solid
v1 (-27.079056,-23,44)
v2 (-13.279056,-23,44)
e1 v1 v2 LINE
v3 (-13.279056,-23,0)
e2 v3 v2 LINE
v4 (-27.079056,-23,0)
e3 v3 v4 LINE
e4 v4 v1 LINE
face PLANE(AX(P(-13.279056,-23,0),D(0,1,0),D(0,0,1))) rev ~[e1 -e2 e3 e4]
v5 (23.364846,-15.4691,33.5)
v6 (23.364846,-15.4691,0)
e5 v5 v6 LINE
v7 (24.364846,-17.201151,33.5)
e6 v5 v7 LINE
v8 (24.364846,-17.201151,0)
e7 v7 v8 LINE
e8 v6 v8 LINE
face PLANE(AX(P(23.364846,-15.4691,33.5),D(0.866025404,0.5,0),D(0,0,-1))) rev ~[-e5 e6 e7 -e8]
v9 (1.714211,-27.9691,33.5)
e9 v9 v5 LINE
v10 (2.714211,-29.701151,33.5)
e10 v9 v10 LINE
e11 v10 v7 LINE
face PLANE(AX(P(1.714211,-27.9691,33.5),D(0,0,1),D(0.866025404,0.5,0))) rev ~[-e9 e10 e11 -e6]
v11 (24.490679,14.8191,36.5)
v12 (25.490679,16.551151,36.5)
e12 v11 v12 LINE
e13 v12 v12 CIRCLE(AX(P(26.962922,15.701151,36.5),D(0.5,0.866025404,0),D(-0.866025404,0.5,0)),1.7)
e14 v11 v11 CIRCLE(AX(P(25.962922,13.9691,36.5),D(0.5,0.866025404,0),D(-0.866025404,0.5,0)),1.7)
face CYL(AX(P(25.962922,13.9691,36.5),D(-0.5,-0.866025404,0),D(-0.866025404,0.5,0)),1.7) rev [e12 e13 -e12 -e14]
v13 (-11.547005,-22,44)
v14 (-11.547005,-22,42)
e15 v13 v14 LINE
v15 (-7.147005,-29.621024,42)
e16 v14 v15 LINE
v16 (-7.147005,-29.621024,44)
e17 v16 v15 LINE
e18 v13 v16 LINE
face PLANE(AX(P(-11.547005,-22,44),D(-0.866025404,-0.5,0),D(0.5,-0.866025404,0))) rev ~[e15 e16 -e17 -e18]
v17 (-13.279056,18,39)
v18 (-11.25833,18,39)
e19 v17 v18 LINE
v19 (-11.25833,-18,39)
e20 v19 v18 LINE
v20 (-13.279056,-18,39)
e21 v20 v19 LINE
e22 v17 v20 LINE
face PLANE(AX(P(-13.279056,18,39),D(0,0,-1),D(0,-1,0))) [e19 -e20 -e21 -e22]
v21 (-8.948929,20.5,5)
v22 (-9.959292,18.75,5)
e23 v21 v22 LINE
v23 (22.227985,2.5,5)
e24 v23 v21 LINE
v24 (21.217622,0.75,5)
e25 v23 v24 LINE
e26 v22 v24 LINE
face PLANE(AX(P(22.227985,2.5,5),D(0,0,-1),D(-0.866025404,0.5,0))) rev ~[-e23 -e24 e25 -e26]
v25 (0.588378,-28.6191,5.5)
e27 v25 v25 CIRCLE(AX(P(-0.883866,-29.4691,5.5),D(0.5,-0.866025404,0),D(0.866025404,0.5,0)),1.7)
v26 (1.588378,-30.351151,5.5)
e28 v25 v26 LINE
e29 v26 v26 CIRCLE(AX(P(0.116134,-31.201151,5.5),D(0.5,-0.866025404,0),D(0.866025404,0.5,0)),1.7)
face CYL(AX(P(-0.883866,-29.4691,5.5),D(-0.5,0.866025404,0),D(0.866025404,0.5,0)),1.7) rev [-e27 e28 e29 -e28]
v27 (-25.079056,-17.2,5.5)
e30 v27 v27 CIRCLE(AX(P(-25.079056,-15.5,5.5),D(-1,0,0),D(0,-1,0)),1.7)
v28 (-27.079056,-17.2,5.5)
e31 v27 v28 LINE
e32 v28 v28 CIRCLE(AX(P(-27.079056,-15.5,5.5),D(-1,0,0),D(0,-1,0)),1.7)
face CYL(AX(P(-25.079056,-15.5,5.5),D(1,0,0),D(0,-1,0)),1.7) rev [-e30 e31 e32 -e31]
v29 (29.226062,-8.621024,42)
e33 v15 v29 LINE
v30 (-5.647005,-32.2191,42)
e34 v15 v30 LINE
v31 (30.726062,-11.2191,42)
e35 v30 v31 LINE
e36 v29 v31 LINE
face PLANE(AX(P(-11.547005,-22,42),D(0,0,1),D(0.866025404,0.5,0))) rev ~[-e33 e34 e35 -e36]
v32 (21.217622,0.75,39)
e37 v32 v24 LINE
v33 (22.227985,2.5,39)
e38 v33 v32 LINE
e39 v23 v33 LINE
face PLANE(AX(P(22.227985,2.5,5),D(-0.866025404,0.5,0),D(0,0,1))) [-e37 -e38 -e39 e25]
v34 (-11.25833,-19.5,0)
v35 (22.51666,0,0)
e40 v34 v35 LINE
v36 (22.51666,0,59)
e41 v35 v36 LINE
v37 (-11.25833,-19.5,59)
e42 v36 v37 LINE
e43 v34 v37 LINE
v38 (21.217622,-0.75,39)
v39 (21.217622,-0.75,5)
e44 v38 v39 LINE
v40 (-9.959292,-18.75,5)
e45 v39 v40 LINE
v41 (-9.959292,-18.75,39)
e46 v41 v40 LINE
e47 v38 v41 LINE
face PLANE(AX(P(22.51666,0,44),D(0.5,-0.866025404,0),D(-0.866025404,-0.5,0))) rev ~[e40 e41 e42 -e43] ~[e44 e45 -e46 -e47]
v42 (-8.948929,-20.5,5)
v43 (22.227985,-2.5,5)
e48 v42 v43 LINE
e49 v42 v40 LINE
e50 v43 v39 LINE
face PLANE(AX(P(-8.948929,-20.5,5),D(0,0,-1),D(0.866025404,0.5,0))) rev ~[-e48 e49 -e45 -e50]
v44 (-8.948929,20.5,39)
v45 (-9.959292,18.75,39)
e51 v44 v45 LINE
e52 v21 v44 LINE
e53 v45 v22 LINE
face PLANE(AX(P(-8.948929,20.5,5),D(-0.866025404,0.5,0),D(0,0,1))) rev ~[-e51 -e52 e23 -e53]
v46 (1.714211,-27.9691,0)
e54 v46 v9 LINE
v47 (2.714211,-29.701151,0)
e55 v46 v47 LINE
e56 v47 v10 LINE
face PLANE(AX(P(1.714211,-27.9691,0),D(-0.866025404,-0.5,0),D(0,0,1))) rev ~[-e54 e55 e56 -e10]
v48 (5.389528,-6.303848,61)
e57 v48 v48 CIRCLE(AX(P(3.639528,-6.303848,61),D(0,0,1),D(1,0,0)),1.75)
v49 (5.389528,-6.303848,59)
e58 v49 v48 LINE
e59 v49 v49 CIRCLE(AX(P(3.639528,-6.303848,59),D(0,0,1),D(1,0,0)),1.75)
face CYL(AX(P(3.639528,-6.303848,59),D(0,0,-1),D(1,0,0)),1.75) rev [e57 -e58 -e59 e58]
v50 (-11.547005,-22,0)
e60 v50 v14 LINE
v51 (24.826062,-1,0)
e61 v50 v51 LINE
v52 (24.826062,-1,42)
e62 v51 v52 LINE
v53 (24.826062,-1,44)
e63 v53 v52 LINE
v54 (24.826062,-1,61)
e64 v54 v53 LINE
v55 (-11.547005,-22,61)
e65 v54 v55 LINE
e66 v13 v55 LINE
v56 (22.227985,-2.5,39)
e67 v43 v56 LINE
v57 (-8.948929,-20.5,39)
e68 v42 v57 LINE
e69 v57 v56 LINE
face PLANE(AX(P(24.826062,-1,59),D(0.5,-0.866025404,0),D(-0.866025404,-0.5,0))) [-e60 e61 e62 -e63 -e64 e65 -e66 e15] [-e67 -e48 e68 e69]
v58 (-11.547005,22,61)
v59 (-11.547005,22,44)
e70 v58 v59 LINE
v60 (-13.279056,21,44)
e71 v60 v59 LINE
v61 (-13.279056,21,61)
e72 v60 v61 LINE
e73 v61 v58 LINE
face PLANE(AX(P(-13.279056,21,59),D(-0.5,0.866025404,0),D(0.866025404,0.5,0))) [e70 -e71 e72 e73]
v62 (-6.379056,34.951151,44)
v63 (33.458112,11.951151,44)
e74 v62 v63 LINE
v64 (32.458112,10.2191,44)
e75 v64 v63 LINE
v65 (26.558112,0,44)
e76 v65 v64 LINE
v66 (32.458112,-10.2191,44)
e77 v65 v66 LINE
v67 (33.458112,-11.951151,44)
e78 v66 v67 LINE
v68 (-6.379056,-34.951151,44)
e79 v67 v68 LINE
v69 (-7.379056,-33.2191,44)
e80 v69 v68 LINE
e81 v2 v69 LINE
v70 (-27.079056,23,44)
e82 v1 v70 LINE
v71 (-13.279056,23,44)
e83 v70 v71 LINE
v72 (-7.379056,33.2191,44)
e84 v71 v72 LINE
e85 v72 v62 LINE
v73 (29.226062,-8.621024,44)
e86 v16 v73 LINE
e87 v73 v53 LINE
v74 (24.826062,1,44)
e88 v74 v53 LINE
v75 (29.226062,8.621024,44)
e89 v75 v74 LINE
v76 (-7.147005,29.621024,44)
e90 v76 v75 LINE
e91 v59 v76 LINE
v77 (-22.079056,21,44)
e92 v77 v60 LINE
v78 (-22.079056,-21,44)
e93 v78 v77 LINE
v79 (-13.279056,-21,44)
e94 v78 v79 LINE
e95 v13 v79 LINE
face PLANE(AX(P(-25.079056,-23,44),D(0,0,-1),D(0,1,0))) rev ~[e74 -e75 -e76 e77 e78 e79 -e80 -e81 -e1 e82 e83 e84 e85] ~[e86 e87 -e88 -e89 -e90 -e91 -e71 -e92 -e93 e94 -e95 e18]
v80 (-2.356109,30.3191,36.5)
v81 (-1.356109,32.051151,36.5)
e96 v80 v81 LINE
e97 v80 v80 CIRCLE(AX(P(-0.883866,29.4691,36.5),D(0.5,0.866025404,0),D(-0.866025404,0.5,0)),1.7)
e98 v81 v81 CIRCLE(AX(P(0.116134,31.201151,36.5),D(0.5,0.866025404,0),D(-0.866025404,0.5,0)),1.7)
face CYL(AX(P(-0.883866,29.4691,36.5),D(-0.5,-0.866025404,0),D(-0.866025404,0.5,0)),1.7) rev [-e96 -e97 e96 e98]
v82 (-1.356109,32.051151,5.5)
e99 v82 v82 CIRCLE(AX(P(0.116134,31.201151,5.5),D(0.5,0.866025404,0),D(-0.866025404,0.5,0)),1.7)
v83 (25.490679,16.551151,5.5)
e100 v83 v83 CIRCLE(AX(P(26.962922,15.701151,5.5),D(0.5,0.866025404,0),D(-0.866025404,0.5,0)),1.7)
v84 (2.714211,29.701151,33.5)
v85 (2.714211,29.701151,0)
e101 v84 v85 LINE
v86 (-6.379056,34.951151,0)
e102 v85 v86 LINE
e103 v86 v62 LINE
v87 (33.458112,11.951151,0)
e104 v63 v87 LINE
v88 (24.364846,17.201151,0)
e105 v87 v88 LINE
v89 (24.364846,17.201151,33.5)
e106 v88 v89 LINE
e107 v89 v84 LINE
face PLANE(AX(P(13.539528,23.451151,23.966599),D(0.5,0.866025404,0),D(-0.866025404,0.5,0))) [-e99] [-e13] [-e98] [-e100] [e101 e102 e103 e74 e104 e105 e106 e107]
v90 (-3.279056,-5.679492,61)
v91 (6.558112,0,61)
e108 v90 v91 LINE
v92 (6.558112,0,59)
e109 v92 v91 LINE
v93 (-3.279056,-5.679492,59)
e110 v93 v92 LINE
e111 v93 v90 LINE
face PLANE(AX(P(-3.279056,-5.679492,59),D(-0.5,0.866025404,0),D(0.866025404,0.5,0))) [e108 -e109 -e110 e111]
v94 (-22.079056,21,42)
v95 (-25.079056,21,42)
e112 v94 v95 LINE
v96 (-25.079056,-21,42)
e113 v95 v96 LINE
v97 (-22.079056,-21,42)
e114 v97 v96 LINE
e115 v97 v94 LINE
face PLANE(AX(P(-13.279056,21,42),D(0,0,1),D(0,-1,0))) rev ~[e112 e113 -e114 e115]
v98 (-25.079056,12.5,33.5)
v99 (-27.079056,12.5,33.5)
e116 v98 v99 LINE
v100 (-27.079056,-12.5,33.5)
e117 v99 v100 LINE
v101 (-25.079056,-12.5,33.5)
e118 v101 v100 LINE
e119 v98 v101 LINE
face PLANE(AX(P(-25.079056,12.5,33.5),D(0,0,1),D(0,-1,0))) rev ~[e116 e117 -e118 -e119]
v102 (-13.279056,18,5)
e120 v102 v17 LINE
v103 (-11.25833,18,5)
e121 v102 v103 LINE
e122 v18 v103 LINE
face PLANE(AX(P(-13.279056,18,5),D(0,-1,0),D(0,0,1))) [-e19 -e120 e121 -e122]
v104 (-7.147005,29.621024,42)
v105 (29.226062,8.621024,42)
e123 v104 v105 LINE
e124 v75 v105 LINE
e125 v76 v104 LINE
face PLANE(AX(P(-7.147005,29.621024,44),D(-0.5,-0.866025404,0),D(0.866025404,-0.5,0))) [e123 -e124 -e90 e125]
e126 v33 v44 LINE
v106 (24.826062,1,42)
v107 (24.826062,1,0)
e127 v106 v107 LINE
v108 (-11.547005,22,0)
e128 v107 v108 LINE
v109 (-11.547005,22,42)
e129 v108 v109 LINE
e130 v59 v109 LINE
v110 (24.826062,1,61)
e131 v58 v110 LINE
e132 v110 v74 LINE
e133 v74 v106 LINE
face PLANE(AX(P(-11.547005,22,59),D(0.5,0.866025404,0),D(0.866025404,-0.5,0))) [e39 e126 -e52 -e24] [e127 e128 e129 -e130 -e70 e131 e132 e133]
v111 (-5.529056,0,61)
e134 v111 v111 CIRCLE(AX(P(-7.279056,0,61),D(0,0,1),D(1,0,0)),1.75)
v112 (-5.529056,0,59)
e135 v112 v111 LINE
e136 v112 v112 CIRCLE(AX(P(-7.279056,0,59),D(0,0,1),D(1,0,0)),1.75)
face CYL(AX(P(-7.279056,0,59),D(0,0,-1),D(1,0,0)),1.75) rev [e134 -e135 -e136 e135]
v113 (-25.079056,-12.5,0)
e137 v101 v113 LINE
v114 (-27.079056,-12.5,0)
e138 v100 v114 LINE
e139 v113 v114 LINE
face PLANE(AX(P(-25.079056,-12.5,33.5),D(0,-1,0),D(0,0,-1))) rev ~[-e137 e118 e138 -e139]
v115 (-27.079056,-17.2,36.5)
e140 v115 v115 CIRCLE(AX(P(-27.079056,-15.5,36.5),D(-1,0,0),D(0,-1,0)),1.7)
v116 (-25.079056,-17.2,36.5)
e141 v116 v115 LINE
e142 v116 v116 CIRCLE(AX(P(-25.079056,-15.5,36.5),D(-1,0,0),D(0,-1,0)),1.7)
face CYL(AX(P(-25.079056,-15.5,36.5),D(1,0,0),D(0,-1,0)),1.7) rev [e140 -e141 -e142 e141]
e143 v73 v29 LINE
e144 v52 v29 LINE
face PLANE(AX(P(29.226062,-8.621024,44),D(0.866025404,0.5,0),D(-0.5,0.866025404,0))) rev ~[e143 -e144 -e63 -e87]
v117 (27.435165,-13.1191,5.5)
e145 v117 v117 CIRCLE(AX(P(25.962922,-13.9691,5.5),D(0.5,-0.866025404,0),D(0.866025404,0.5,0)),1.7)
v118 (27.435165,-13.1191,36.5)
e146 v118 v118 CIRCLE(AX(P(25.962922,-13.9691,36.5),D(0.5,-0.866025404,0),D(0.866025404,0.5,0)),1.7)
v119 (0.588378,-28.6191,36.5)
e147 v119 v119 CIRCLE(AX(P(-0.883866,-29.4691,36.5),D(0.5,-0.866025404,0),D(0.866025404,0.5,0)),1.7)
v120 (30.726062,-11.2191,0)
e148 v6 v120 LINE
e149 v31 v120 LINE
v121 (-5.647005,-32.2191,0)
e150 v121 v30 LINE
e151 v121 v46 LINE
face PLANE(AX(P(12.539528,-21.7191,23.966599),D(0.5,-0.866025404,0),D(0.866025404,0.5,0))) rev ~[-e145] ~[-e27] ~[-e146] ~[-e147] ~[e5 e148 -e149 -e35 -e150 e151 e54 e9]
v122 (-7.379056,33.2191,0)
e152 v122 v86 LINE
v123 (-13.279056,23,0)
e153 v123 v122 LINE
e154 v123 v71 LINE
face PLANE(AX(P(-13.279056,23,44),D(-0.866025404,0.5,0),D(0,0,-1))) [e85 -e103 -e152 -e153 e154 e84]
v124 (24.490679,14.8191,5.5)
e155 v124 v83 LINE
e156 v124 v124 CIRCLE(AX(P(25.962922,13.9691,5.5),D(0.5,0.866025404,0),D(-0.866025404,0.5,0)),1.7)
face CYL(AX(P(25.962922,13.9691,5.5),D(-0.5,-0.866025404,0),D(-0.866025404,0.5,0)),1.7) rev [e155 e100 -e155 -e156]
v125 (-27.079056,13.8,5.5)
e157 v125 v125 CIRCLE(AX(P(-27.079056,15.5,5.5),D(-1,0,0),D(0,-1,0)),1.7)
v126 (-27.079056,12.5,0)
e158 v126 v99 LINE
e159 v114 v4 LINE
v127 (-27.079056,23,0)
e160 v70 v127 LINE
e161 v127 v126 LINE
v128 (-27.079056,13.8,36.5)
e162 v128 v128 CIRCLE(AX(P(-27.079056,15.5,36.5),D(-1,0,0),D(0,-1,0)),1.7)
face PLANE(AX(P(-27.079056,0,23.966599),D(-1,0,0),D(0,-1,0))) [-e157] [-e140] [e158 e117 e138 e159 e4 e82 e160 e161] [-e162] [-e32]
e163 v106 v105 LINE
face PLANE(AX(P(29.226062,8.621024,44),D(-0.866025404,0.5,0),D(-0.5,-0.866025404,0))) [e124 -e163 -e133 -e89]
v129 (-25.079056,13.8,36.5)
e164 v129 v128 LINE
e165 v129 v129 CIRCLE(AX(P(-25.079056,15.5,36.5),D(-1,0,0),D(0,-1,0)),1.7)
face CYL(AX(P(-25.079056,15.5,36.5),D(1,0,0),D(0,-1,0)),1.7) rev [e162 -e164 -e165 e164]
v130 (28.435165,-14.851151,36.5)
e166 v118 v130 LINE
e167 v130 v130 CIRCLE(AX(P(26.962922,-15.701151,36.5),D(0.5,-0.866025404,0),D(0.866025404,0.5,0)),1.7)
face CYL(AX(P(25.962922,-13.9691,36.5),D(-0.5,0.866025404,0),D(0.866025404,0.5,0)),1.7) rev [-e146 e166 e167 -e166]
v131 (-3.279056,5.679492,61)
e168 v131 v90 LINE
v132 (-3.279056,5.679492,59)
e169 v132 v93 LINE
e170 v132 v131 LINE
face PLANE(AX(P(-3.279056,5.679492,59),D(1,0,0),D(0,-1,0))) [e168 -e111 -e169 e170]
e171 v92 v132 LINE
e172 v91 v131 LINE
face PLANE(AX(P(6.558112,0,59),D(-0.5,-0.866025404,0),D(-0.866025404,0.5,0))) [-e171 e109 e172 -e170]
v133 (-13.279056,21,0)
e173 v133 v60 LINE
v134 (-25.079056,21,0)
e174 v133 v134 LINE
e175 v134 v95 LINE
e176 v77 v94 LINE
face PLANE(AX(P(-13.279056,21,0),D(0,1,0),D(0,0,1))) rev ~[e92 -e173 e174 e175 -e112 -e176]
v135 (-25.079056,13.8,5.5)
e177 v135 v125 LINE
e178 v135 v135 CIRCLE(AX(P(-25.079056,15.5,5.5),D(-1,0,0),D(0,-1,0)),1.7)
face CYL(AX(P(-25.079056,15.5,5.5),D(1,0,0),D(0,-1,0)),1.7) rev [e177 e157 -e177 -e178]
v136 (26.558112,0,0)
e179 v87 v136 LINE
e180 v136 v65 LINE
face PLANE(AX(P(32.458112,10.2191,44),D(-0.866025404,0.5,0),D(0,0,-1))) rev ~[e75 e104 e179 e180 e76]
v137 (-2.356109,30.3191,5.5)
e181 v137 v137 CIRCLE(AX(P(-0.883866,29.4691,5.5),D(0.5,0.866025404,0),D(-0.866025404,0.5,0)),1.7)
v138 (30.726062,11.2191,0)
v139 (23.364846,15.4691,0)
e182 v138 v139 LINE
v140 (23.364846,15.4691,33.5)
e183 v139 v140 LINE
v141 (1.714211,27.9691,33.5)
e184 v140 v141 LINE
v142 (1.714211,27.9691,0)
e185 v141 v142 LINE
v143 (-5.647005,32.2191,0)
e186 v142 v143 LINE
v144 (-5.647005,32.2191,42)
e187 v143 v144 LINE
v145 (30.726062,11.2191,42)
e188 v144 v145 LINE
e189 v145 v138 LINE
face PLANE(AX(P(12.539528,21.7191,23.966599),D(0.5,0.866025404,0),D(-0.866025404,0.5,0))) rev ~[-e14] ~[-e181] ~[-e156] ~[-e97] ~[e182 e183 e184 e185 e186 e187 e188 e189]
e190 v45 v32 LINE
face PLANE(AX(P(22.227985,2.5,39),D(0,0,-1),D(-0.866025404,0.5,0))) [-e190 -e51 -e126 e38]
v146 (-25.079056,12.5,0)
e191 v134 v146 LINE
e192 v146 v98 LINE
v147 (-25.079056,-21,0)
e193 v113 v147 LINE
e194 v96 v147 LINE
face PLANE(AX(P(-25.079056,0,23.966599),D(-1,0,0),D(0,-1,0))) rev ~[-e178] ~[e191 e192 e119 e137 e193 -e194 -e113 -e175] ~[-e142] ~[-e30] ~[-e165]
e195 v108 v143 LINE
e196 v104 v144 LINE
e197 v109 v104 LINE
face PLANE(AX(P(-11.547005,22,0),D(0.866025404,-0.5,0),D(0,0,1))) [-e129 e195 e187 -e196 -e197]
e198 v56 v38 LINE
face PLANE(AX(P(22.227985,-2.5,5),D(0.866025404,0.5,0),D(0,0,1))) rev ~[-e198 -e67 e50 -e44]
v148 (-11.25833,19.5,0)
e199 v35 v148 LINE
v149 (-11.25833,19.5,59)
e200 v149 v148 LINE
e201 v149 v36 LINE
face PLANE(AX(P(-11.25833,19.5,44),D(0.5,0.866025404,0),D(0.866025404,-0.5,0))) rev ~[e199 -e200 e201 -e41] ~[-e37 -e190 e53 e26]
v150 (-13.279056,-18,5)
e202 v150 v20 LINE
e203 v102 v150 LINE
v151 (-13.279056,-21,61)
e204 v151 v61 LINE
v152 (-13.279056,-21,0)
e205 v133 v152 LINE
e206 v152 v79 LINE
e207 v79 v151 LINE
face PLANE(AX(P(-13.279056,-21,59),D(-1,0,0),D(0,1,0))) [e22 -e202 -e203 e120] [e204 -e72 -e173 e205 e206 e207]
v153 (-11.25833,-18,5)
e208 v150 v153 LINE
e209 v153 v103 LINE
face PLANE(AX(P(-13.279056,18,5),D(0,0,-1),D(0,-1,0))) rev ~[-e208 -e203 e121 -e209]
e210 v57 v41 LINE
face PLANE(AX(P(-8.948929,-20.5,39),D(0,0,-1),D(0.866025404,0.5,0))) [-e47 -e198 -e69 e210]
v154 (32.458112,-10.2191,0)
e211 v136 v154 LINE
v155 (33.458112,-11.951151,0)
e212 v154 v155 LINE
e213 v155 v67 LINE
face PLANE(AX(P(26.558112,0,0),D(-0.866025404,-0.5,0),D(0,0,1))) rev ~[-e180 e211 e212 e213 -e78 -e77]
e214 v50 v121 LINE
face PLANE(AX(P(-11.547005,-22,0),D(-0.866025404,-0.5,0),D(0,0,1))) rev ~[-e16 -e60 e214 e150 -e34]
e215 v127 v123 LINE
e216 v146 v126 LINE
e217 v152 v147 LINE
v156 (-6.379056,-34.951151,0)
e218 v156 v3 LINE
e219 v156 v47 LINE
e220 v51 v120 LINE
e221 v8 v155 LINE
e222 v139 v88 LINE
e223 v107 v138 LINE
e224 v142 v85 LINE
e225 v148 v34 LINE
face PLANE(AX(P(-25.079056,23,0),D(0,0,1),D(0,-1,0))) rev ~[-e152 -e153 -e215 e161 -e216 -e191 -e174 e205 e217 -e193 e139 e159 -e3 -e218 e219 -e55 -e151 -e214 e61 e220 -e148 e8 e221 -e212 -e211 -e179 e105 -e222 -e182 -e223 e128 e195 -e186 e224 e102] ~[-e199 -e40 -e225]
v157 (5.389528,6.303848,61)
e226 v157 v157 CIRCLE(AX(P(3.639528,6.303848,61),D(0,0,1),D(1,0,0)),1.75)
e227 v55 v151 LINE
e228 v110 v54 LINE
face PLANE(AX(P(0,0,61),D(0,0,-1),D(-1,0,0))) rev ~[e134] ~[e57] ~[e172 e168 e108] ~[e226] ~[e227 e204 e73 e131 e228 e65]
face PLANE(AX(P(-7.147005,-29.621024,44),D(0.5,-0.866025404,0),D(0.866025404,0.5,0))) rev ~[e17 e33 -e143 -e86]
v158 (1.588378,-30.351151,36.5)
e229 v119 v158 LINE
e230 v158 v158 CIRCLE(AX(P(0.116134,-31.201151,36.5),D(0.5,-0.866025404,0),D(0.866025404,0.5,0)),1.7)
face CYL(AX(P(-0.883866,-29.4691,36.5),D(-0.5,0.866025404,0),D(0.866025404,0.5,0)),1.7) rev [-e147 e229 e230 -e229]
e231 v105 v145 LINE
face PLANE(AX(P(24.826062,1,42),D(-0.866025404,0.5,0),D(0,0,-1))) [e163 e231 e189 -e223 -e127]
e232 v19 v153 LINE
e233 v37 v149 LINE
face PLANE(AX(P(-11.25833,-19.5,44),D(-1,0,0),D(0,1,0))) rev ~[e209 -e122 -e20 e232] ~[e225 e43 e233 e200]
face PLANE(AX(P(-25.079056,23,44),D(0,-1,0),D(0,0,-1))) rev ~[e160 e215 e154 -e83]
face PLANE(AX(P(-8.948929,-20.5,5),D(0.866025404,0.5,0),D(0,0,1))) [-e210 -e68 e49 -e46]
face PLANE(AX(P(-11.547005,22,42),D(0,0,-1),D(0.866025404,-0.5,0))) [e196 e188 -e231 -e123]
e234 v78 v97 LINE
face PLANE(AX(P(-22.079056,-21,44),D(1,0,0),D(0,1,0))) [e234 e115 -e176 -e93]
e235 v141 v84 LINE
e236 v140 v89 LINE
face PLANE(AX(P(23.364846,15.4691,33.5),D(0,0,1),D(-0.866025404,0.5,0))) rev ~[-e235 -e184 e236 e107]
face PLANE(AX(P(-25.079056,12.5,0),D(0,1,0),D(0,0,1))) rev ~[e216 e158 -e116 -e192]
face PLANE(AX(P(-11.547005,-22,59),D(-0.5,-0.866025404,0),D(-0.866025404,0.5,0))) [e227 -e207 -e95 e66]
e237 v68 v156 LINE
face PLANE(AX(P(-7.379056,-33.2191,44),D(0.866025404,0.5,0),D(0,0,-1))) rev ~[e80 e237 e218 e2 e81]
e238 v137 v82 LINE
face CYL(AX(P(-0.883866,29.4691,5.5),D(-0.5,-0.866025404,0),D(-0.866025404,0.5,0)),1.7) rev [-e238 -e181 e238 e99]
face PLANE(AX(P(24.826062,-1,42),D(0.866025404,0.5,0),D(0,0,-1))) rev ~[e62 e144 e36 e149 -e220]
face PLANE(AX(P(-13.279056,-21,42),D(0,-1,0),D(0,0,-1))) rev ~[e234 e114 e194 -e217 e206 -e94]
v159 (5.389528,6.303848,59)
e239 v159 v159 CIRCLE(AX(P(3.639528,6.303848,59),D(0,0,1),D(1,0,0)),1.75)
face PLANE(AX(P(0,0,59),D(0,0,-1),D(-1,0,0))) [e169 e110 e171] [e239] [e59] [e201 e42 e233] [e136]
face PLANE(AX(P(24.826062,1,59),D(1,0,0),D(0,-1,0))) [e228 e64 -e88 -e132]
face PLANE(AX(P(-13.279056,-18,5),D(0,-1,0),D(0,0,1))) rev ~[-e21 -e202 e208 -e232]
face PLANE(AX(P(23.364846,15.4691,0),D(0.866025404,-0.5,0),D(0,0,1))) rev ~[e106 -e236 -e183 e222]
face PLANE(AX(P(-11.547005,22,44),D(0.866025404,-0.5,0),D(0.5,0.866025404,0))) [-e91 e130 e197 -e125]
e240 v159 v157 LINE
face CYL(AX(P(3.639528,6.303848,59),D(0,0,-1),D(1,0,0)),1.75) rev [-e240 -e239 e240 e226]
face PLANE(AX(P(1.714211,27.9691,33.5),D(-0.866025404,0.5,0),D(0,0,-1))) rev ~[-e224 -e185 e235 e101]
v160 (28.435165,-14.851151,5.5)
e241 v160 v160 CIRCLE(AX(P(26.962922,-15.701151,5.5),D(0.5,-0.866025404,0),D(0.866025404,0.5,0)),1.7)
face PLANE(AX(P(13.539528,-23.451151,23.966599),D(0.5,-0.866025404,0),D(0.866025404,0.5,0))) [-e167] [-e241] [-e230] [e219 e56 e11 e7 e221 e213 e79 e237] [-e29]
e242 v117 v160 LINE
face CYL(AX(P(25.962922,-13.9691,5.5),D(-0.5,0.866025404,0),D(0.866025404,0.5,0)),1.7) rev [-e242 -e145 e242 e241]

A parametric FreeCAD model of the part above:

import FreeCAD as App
import Part
import Sketcher
Q = App.Units.Quantity


def add_polygon(sketch, points):
    """Adds a closed chain of lines whose ends are joined by coincident constraints."""
    first, n = sketch.GeometryCount, len(points)
    for a, b in zip(points, points[1:] + points[:1]):
        sketch.addGeometry(Part.LineSegment(App.Vector(*a, 0), App.Vector(*b, 0)), False)
    for i in range(n):
        sketch.addConstraint(Sketcher.Constraint("Coincident", first + i, 2, first + (i + 1) % n, 1))

doc = App.newDocument("Part")
body = doc.addObject("PartDesign::Body", "Body")

sketch1 = doc.addObject("Sketcher::SketchObject", "Sketch")
body.addObject(sketch1)
sketch1.AttachmentSupport = (doc.XY_Plane, [""])
sketch1.MapMode = "FlatFace"
add_polygon(sketch1, [(27, 0), (-13, 23), (-13, -23)])
add_polygon(sketch1, [(-11, 20), (23, 0), (-11, -20)])
sketch1.addConstraint(Sketcher.Constraint("Vertical", 1))
sketch1.addConstraint(Sketcher.Constraint("Vertical", 5))
sketch1.addConstraint(Sketcher.Constraint("PointOnObject", 2, 2, -1))
sketch1.addConstraint(Sketcher.Constraint("PointOnObject", 3, 2, -1))
sketch1.addConstraint(Sketcher.Constraint("Parallel", 0, 3))
sketch1.addConstraint(Sketcher.Constraint("Parallel", 2, 4))
sketch1.addConstraint(Sketcher.Constraint("Equal", 0, 2))
sketch1.addConstraint(Sketcher.Constraint("DistanceY", 1, 2, 1, 1, 46.0))
sketch1.addConstraint(Sketcher.Constraint("DistanceY", 5, 1, 5, 2, 39.0))
sketch1.addConstraint(Sketcher.Constraint("Angle", 0, Q("150 deg")))
sketch1.addConstraint(Sketcher.Constraint("DistanceX", -1, 1, 3, 2, 22.51666))
sketch1.addConstraint(Sketcher.Constraint("DistanceX", 3, 2, 2, 2, 4.041452))
pad1 = doc.addObject("PartDesign::Pad", "Pad")
body.addObject(pad1)
pad1.Profile = sketch1
pad1.Length = 44

sketch2 = doc.addObject("Sketcher::SketchObject", "Sketch001")
body.addObject(sketch2)
sketch2.Placement = App.Placement(App.Vector(6.639528, -11.5, 0), App.Rotation(App.Vector(0.866025404, 0.5, 0), App.Vector(0, 0, 1), App.Vector(0.5, -0.866025404, 0), "ZXY"))
add_polygon(sketch2, [(-23, 0), (-21, 0), (-21, 42), (21, 42), (21, 0), (23, 0), (23, 44), (-23, 44)])
sketch2.addConstraint(Sketcher.Constraint("Horizontal", 0))
sketch2.addConstraint(Sketcher.Constraint("Vertical", 1))
sketch2.addConstraint(Sketcher.Constraint("Horizontal", 2))
sketch2.addConstraint(Sketcher.Constraint("Vertical", 3))
sketch2.addConstraint(Sketcher.Constraint("Horizontal", 4))
sketch2.addConstraint(Sketcher.Constraint("Vertical", 5))
sketch2.addConstraint(Sketcher.Constraint("Horizontal", 6))
sketch2.addConstraint(Sketcher.Constraint("Vertical", 7))
sketch2.addConstraint(Sketcher.Constraint("Symmetric", 0, 2, 3, 2, -1, 1))
sketch2.addConstraint(Sketcher.Constraint("Symmetric", 4, 2, 7, 2, -2))
sketch2.addConstraint(Sketcher.Constraint("Equal", 2, 1))
sketch2.addConstraint(Sketcher.Constraint("DistanceX", 0, 1, 0, 2, 2.0))
sketch2.addConstraint(Sketcher.Constraint("DistanceX", 2, 1, 2, 2, 42.0))
sketch2.addConstraint(Sketcher.Constraint("DistanceY", 5, 1, 5, 2, 44.0))
pad2 = doc.addObject("PartDesign::Pad", "Pad001")
body.addObject(pad2)
pad2.Profile = sketch2
pad2.Length = 11.8

sketch3 = doc.addObject("Sketcher::SketchObject", "Sketch002")
body.addObject(sketch3)
sketch3.Placement = App.Placement(App.Vector(12.539528, -21.7191, 0), App.Rotation(App.Vector(0.866025404, 0.5, 0), App.Vector(0, 0, 1), App.Vector(0.5, -0.866025404, 0), "ZXY"))
add_polygon(sketch3, [(-23, 0), (-12.5, 0), (-12.5, 33.5), (12.5, 33.5), (12.5, 0), (23, 0), (23, 44), (-23, 44)])
sketch3.addGeometry(Part.Circle(App.Vector(-15.5, 5.5, 0), App.Vector(0, 0, 1), 1.7), False)
sketch3.addGeometry(Part.Circle(App.Vector(15.5, 5.5, 0), App.Vector(0, 0, 1), 1.7), False)
sketch3.addGeometry(Part.Circle(App.Vector(-15.5, 36.5, 0), App.Vector(0, 0, 1), 1.7), False)
sketch3.addGeometry(Part.Circle(App.Vector(15.5, 36.5, 0), App.Vector(0, 0, 1), 1.7), False)
sketch3.addConstraint(Sketcher.Constraint("Horizontal", 0))
sketch3.addConstraint(Sketcher.Constraint("Vertical", 1))
sketch3.addConstraint(Sketcher.Constraint("Horizontal", 2))
sketch3.addConstraint(Sketcher.Constraint("Vertical", 3))
sketch3.addConstraint(Sketcher.Constraint("Horizontal", 4))
sketch3.addConstraint(Sketcher.Constraint("Vertical", 5))
sketch3.addConstraint(Sketcher.Constraint("Horizontal", 6))
sketch3.addConstraint(Sketcher.Constraint("Vertical", 7))
sketch3.addConstraint(Sketcher.Constraint("Equal", 8, 9))
sketch3.addConstraint(Sketcher.Constraint("Equal", 9, 10))
sketch3.addConstraint(Sketcher.Constraint("Equal", 10, 11))
sketch3.addConstraint(Sketcher.Constraint("Symmetric", 0, 2, 3, 2, -1, 1))
sketch3.addConstraint(Sketcher.Constraint("Symmetric", 8, 3, 9, 3, -2))
sketch3.addConstraint(Sketcher.Constraint("Symmetric", 10, 3, 11, 3, -2))
sketch3.addConstraint(Sketcher.Constraint("Symmetric", 4, 2, 7, 2, -2))
sketch3.addConstraint(Sketcher.Constraint("Vertical", 8, 3, 10, 3))
sketch3.addConstraint(Sketcher.Constraint("Diameter", 8, 3.4))
sketch3.addConstraint(Sketcher.Constraint("DistanceX", 2, 1, 2, 2, 25.0))
sketch3.addConstraint(Sketcher.Constraint("DistanceX", 6, 2, 6, 1, 46.0))
sketch3.addConstraint(Sketcher.Constraint("DistanceY", 5, 1, 5, 2, 44.0))
sketch3.addConstraint(Sketcher.Constraint("DistanceY", 1, 1, 1, 2, 33.5))
sketch3.addConstraint(Sketcher.Constraint("DistanceX", 8, 3, 9, 3, 31.0))
sketch3.addConstraint(Sketcher.Constraint("DistanceY", 8, 3, 10, 3, 31.0))
sketch3.addConstraint(Sketcher.Constraint("DistanceY", 1, 2, 10, 3, 3.0))
pad3 = doc.addObject("PartDesign::Pad", "Pad002")
body.addObject(pad3)
pad3.Profile = sketch3
pad3.Length = 2

sketch4 = doc.addObject("Sketcher::SketchObject", "Sketch003")
body.addObject(sketch4)
sketch4.AttachmentSupport = (doc.XY_Plane, [""])
sketch4.MapMode = "FlatFace"
sketch4.AttachmentOffset = App.Placement(App.Vector(0, 0, 44), App.Rotation())
add_polygon(sketch4, [(-12, -22), (-7, -30), (29, -9), (25, -1)])
sketch4.addConstraint(Sketcher.Constraint("Perpendicular", 0, 1))
sketch4.addConstraint(Sketcher.Constraint("Perpendicular", 1, 2))
sketch4.addConstraint(Sketcher.Constraint("Perpendicular", 2, 3))
sketch4.addConstraint(Sketcher.Constraint("Angle", 0, Q("-60 deg")))
sketch4.addConstraint(Sketcher.Constraint("Distance", 1, 42.0))
sketch4.addConstraint(Sketcher.Constraint("DistanceY", 2, 2, -1, 1, 1.0))
sketch4.addConstraint(Sketcher.Constraint("Distance", 0, 8.8))
sketch4.addConstraint(Sketcher.Constraint("DistanceX", -1, 1, 1, 2, 29.226062))
pocket1 = doc.addObject("PartDesign::Pocket", "Pocket")
body.addObject(pocket1)
pocket1.Profile = sketch4
pocket1.Length = 5

sketch5 = doc.addObject("Sketcher::SketchObject", "Sketch004")
body.addObject(sketch5)
sketch5.Placement = App.Placement(App.Vector(6.639528, -11.5, 0), App.Rotation(App.Vector(0.866025404, 0.5, 0), App.Vector(0, 0, 1), App.Vector(0.5, -0.866025404, 0), "ZXY"))
add_polygon(sketch5, [(-18, 39), (-18, 5), (18, 5), (18, 39)])
sketch5.addConstraint(Sketcher.Constraint("Vertical", 0))
sketch5.addConstraint(Sketcher.Constraint("Horizontal", 1))
sketch5.addConstraint(Sketcher.Constraint("Vertical", 2))
sketch5.addConstraint(Sketcher.Constraint("Horizontal", 3))
sketch5.addConstraint(Sketcher.Constraint("DistanceX", 1, 1, 1, 2, 36.0))
sketch5.addConstraint(Sketcher.Constraint("DistanceY", 0, 2, 0, 1, 34.0))
sketch5.addConstraint(Sketcher.Constraint("DistanceX", 0, 2, -1, 1, 18.0))
sketch5.addConstraint(Sketcher.Constraint("DistanceY", -1, 1, 0, 2, 5.0))
pocket2 = doc.addObject("PartDesign::Pocket", "Pocket001")
body.addObject(pocket2)
pocket2.Profile = sketch5
pocket2.Length = 3

sketch6 = doc.addObject("Sketcher::SketchObject", "Sketch005")
body.addObject(sketch6)
sketch6.Placement = App.Placement(App.Vector(6.639528, 11.5, 0), App.Rotation(App.Vector(-0.866025404, 0.5, 0), App.Vector(0, 0, 1), App.Vector(0.5, 0.866025404, 0), "ZXY"))
add_polygon(sketch6, [(-18, 39), (-18, 5), (18, 5), (18, 39)])
sketch6.addConstraint(Sketcher.Constraint("Vertical", 0))
sketch6.addConstraint(Sketcher.Constraint("Horizontal", 1))
sketch6.addConstraint(Sketcher.Constraint("Vertical", 2))
sketch6.addConstraint(Sketcher.Constraint("Horizontal", 3))
sketch6.addConstraint(Sketcher.Constraint("DistanceX", 1, 1, 1, 2, 36.0))
sketch6.addConstraint(Sketcher.Constraint("DistanceY", 0, 2, 0, 1, 34.0))
sketch6.addConstraint(Sketcher.Constraint("DistanceX", 0, 2, -1, 1, 18.0))
sketch6.addConstraint(Sketcher.Constraint("DistanceY", -1, 1, 0, 2, 5.0))
pocket3 = doc.addObject("PartDesign::Pocket", "Pocket002")
body.addObject(pocket3)
pocket3.Profile = sketch6
pocket3.Length = 4

sketch7 = doc.addObject("Sketcher::SketchObject", "Sketch006")
body.addObject(sketch7)
sketch7.Placement = App.Placement(App.Vector(6.639528, 11.5, 0), App.Rotation(App.Vector(-0.866025404, 0.5, 0), App.Vector(0, 0, 1), App.Vector(0.5, 0.866025404, 0), "ZXY"))
add_polygon(sketch7, [(23, 44), (-23, 44), (-23, 0), (-21, 0), (-21, 42), (21, 42), (21, 0), (23, 0)])
sketch7.addConstraint(Sketcher.Constraint("Horizontal", 0))
sketch7.addConstraint(Sketcher.Constraint("Vertical", 1))
sketch7.addConstraint(Sketcher.Constraint("Horizontal", 2))
sketch7.addConstraint(Sketcher.Constraint("Vertical", 3))
sketch7.addConstraint(Sketcher.Constraint("Horizontal", 4))
sketch7.addConstraint(Sketcher.Constraint("Vertical", 5))
sketch7.addConstraint(Sketcher.Constraint("Horizontal", 6))
sketch7.addConstraint(Sketcher.Constraint("Vertical", 7))
sketch7.addConstraint(Sketcher.Constraint("Symmetric", 2, 2, 5, 2, -1, 1))
sketch7.addConstraint(Sketcher.Constraint("Symmetric", 1, 2, 6, 2, -2))
sketch7.addConstraint(Sketcher.Constraint("Equal", 4, 3))
sketch7.addConstraint(Sketcher.Constraint("DistanceX", 0, 2, 0, 1, 46.0))
sketch7.addConstraint(Sketcher.Constraint("DistanceX", 2, 1, 2, 2, 2.0))
sketch7.addConstraint(Sketcher.Constraint("DistanceY", 1, 2, 1, 1, 44.0))
pad4 = doc.addObject("PartDesign::Pad", "Pad003")
body.addObject(pad4)
pad4.Profile = sketch7
pad4.Length = 11.8

sketch8 = doc.addObject("Sketcher::SketchObject", "Sketch007")
body.addObject(sketch8)
sketch8.Placement = App.Placement(App.Vector(12.539528, 21.7191, 0), App.Rotation(App.Vector(-0.866025404, 0.5, 0), App.Vector(0, 0, 1), App.Vector(0.5, 0.866025404, 0), "ZXY"))
add_polygon(sketch8, [(-23, 0), (-12.5, 0), (-12.5, 33.5), (12.5, 33.5), (12.5, 0), (23, 0), (23, 44), (-23, 44)])
sketch8.addGeometry(Part.Circle(App.Vector(-15.5, 5.5, 0), App.Vector(0, 0, 1), 1.7), False)
sketch8.addGeometry(Part.Circle(App.Vector(15.5, 5.5, 0), App.Vector(0, 0, 1), 1.7), False)
sketch8.addGeometry(Part.Circle(App.Vector(-15.5, 36.5, 0), App.Vector(0, 0, 1), 1.7), False)
sketch8.addGeometry(Part.Circle(App.Vector(15.5, 36.5, 0), App.Vector(0, 0, 1), 1.7), False)
sketch8.addConstraint(Sketcher.Constraint("Horizontal", 0))
sketch8.addConstraint(Sketcher.Constraint("Vertical", 1))
sketch8.addConstraint(Sketcher.Constraint("Horizontal", 2))
sketch8.addConstraint(Sketcher.Constraint("Vertical", 3))
sketch8.addConstraint(Sketcher.Constraint("Horizontal", 4))
sketch8.addConstraint(Sketcher.Constraint("Vertical", 5))
sketch8.addConstraint(Sketcher.Constraint("Horizontal", 6))
sketch8.addConstraint(Sketcher.Constraint("Vertical", 7))
sketch8.addConstraint(Sketcher.Constraint("Equal", 8, 9))
sketch8.addConstraint(Sketcher.Constraint("Equal", 9, 10))
sketch8.addConstraint(Sketcher.Constraint("Equal", 10, 11))
sketch8.addConstraint(Sketcher.Constraint("Symmetric", 0, 2, 3, 2, -1, 1))
sketch8.addConstraint(Sketcher.Constraint("Symmetric", 8, 3, 9, 3, -2))
sketch8.addConstraint(Sketcher.Constraint("Symmetric", 10, 3, 11, 3, -2))
sketch8.addConstraint(Sketcher.Constraint("Symmetric", 4, 2, 7, 2, -2))
sketch8.addConstraint(Sketcher.Constraint("Vertical", 8, 3, 10, 3))
sketch8.addConstraint(Sketcher.Constraint("Diameter", 8, 3.4))
sketch8.addConstraint(Sketcher.Constraint("DistanceX", 2, 1, 2, 2, 25.0))
sketch8.addConstraint(Sketcher.Constraint("DistanceX", 6, 2, 6, 1, 46.0))
sketch8.addConstraint(Sketcher.Constraint("DistanceY", 5, 1, 5, 2, 44.0))
sketch8.addConstraint(Sketcher.Constraint("DistanceY", 1, 1, 1, 2, 33.5))
sketch8.addConstraint(Sketcher.Constraint("DistanceX", 8, 3, 9, 3, 31.0))
sketch8.addConstraint(Sketcher.Constraint("DistanceY", 8, 3, 10, 3, 31.0))
sketch8.addConstraint(Sketcher.Constraint("DistanceY", 1, 2, 10, 3, 3.0))
pad5 = doc.addObject("PartDesign::Pad", "Pad004")
body.addObject(pad5)
pad5.Profile = sketch8
pad5.Length = 2

sketch9 = doc.addObject("Sketcher::SketchObject", "Sketch008")
body.addObject(sketch9)
sketch9.AttachmentSupport = (doc.XY_Plane, [""])
sketch9.MapMode = "FlatFace"
sketch9.AttachmentOffset = App.Placement(App.Vector(0, 0, 44), App.Rotation())
add_polygon(sketch9, [(-7, 30), (-12, 22), (25, 1), (29, 9)])
sketch9.addConstraint(Sketcher.Constraint("Perpendicular", 0, 1))
sketch9.addConstraint(Sketcher.Constraint("Perpendicular", 1, 2))
sketch9.addConstraint(Sketcher.Constraint("Perpendicular", 2, 3))
sketch9.addConstraint(Sketcher.Constraint("Angle", 0, Q("-120 deg")))
sketch9.addConstraint(Sketcher.Constraint("Distance", 1, 42.0))
sketch9.addConstraint(Sketcher.Constraint("DistanceY", -1, 1, 0, 2, 22.0))
sketch9.addConstraint(Sketcher.Constraint("Distance", 0, 8.8))
sketch9.addConstraint(Sketcher.Constraint("DistanceX", -1, 1, 1, 2, 24.826062))
pocket4 = doc.addObject("PartDesign::Pocket", "Pocket003")
body.addObject(pocket4)
pocket4.Profile = sketch9
pocket4.Length = 2

sketch10 = doc.addObject("Sketcher::SketchObject", "Sketch009")
body.addObject(sketch10)
sketch10.AttachmentSupport = (doc.YZ_Plane, [""])
sketch10.MapMode = "FlatFace"
sketch10.AttachmentOffset = App.Placement(App.Vector(0, 0, -13.279056), App.Rotation())
add_polygon(sketch10, [(23, 0), (21, 0), (21, 42), (-21, 42), (-21, 0), (-23, 0), (-23, 44), (23, 44)])
sketch10.addConstraint(Sketcher.Constraint("Horizontal", 0))
sketch10.addConstraint(Sketcher.Constraint("Vertical", 1))
sketch10.addConstraint(Sketcher.Constraint("Horizontal", 2))
sketch10.addConstraint(Sketcher.Constraint("Vertical", 3))
sketch10.addConstraint(Sketcher.Constraint("Horizontal", 4))
sketch10.addConstraint(Sketcher.Constraint("Vertical", 5))
sketch10.addConstraint(Sketcher.Constraint("Horizontal", 6))
sketch10.addConstraint(Sketcher.Constraint("Vertical", 7))
sketch10.addConstraint(Sketcher.Constraint("Symmetric", 0, 2, 3, 2, -1, 1))
sketch10.addConstraint(Sketcher.Constraint("Symmetric", 4, 2, 7, 2, -2))
sketch10.addConstraint(Sketcher.Constraint("Equal", 2, 1))
sketch10.addConstraint(Sketcher.Constraint("DistanceX", 0, 2, 0, 1, 2.0))
sketch10.addConstraint(Sketcher.Constraint("DistanceX", 2, 2, 2, 1, 42.0))
sketch10.addConstraint(Sketcher.Constraint("DistanceY", 5, 1, 5, 2, 44.0))
pad6 = doc.addObject("PartDesign::Pad", "Pad005")
body.addObject(pad6)
pad6.Profile = sketch10
pad6.Length = 11.8
pad6.Reversed = True

sketch11 = doc.addObject("Sketcher::SketchObject", "Sketch010")
body.addObject(sketch11)
sketch11.AttachmentSupport = (doc.YZ_Plane, [""])
sketch11.MapMode = "FlatFace"
sketch11.AttachmentOffset = App.Placement(App.Vector(0, 0, -25.079056), App.Rotation())
add_polygon(sketch11, [(23, 0), (12.5, 0), (12.5, 33.5), (-12.5, 33.5), (-12.5, 0), (-23, 0), (-23, 44), (23, 44)])
sketch11.addGeometry(Part.Circle(App.Vector(15.5, 5.5, 0), App.Vector(0, 0, 1), 1.7), False)
sketch11.addGeometry(Part.Circle(App.Vector(-15.5, 5.5, 0), App.Vector(0, 0, 1), 1.7), False)
sketch11.addGeometry(Part.Circle(App.Vector(15.5, 36.5, 0), App.Vector(0, 0, 1), 1.7), False)
sketch11.addGeometry(Part.Circle(App.Vector(-15.5, 36.5, 0), App.Vector(0, 0, 1), 1.7), False)
sketch11.addConstraint(Sketcher.Constraint("Horizontal", 0))
sketch11.addConstraint(Sketcher.Constraint("Vertical", 1))
sketch11.addConstraint(Sketcher.Constraint("Horizontal", 2))
sketch11.addConstraint(Sketcher.Constraint("Vertical", 3))
sketch11.addConstraint(Sketcher.Constraint("Horizontal", 4))
sketch11.addConstraint(Sketcher.Constraint("Vertical", 5))
sketch11.addConstraint(Sketcher.Constraint("Horizontal", 6))
sketch11.addConstraint(Sketcher.Constraint("Vertical", 7))
sketch11.addConstraint(Sketcher.Constraint("Equal", 8, 9))
sketch11.addConstraint(Sketcher.Constraint("Equal", 9, 10))
sketch11.addConstraint(Sketcher.Constraint("Equal", 10, 11))
sketch11.addConstraint(Sketcher.Constraint("Symmetric", 0, 2, 3, 2, -1, 1))
sketch11.addConstraint(Sketcher.Constraint("Symmetric", 8, 3, 9, 3, -2))
sketch11.addConstraint(Sketcher.Constraint("Symmetric", 10, 3, 11, 3, -2))
sketch11.addConstraint(Sketcher.Constraint("Symmetric", 4, 2, 7, 2, -2))
sketch11.addConstraint(Sketcher.Constraint("Vertical", 8, 3, 10, 3))
sketch11.addConstraint(Sketcher.Constraint("Diameter", 8, 3.4))
sketch11.addConstraint(Sketcher.Constraint("DistanceX", 2, 2, 2, 1, 25.0))
sketch11.addConstraint(Sketcher.Constraint("DistanceX", 6, 1, 6, 2, 46.0))
sketch11.addConstraint(Sketcher.Constraint("DistanceY", 5, 1, 5, 2, 44.0))
sketch11.addConstraint(Sketcher.Constraint("DistanceY", 1, 1, 1, 2, 33.5))
sketch11.addConstraint(Sketcher.Constraint("DistanceX", 9, 3, 8, 3, 31.0))
sketch11.addConstraint(Sketcher.Constraint("DistanceY", 8, 3, 10, 3, 31.0))
sketch11.addConstraint(Sketcher.Constraint("DistanceY", 1, 2, 10, 3, 3.0))
pad7 = doc.addObject("PartDesign::Pad", "Pad006")
body.addObject(pad7)
pad7.Profile = sketch11
pad7.Length = 2
pad7.Reversed = True

sketch12 = doc.addObject("Sketcher::SketchObject", "Sketch011")
body.addObject(sketch12)
sketch12.AttachmentSupport = (doc.XY_Plane, [""])
sketch12.MapMode = "FlatFace"
sketch12.AttachmentOffset = App.Placement(App.Vector(0, 0, 44), App.Rotation())
add_polygon(sketch12, [(-22, 21), (-22, -21), (-13, -21), (-13, 21)])
sketch12.addConstraint(Sketcher.Constraint("Vertical", 0))
sketch12.addConstraint(Sketcher.Constraint("Horizontal", 1))
sketch12.addConstraint(Sketcher.Constraint("Vertical", 2))
sketch12.addConstraint(Sketcher.Constraint("Horizontal", 3))
sketch12.addConstraint(Sketcher.Constraint("DistanceY", 0, 2, 0, 1, 42.0))
sketch12.addConstraint(Sketcher.Constraint("DistanceX", 1, 1, 1, 2, 8.8))
sketch12.addConstraint(Sketcher.Constraint("DistanceY", 0, 2, -1, 1, 21.0))
sketch12.addConstraint(Sketcher.Constraint("DistanceX", 0, 2, -1, 1, 22.079056))
pocket5 = doc.addObject("PartDesign::Pocket", "Pocket004")
body.addObject(pocket5)
pocket5.Profile = sketch12
pocket5.Length = 2

sketch13 = doc.addObject("Sketcher::SketchObject", "Sketch012")
body.addObject(sketch13)
sketch13.AttachmentSupport = (doc.YZ_Plane, [""])
sketch13.MapMode = "FlatFace"
sketch13.AttachmentOffset = App.Placement(App.Vector(0, 0, -13.279056), App.Rotation())
add_polygon(sketch13, [(18, 39), (18, 5), (-18, 5), (-18, 39)])
sketch13.addConstraint(Sketcher.Constraint("Vertical", 0))
sketch13.addConstraint(Sketcher.Constraint("Horizontal", 1))
sketch13.addConstraint(Sketcher.Constraint("Vertical", 2))
sketch13.addConstraint(Sketcher.Constraint("Horizontal", 3))
sketch13.addConstraint(Sketcher.Constraint("DistanceX", 1, 2, 1, 1, 36.0))
sketch13.addConstraint(Sketcher.Constraint("DistanceY", 0, 2, 0, 1, 34.0))
sketch13.addConstraint(Sketcher.Constraint("DistanceX", -1, 1, 0, 2, 18.0))
sketch13.addConstraint(Sketcher.Constraint("DistanceY", -1, 1, 0, 2, 5.0))
pocket6 = doc.addObject("PartDesign::Pocket", "Pocket005")
body.addObject(pocket6)
pocket6.Profile = sketch13
pocket6.Length = 3
pocket6.Reversed = True

sketch14 = doc.addObject("Sketcher::SketchObject", "Sketch013")
body.addObject(sketch14)
sketch14.AttachmentSupport = (doc.XY_Plane, [""])
sketch14.MapMode = "FlatFace"
sketch14.AttachmentOffset = App.Placement(App.Vector(0, 0, 44), App.Rotation())
add_polygon(sketch14, [(-11.5, 22), (-13.3, 21), (-13.3, -21), (-11.5, -22), (24.8, -1), (24.8, 1)])
add_polygon(sketch14, [(-11.3, 19.5), (22.5, 0), (-11.3, -19.5)])
sketch14.addConstraint(Sketcher.Constraint("Vertical", 1))
sketch14.addConstraint(Sketcher.Constraint("Vertical", 4))
sketch14.addConstraint(Sketcher.Constraint("Vertical", 8))
sketch14.addConstraint(Sketcher.Constraint("Symmetric", 2, 2, 5, 2, -1))
sketch14.addConstraint(Sketcher.Constraint("PointOnObject", 6, 2, -1))
sketch14.addConstraint(Sketcher.Constraint("Parallel", 0, 3))
sketch14.addConstraint(Sketcher.Constraint("Parallel", 2, 5))
sketch14.addConstraint(Sketcher.Constraint("Parallel", 5, 6))
sketch14.addConstraint(Sketcher.Constraint("Parallel", 3, 7))
sketch14.addConstraint(Sketcher.Constraint("Equal", 0, 2))
sketch14.addConstraint(Sketcher.Constraint("DistanceY", 1, 2, 1, 1, 42.0))
sketch14.addConstraint(Sketcher.Constraint("DistanceY", 4, 1, 4, 2, 2.0))
sketch14.addConstraint(Sketcher.Constraint("DistanceY", 8, 1, 8, 2, 39.0))
sketch14.addConstraint(Sketcher.Constraint("Angle", 0, Q("-150 deg")))
sketch14.addConstraint(Sketcher.Constraint("Distance", 0, 2.0))
sketch14.addConstraint(Sketcher.Constraint("DistanceX", 6, 2, 3, 2, 2.309401))
sketch14.addConstraint(Sketcher.Constraint("DistanceX", -1, 1, 3, 2, 24.826062))
pad8 = doc.addObject("PartDesign::Pad", "Pad007")
body.addObject(pad8)
pad8.Profile = sketch14
pad8.Length = 15

sketch15 = doc.addObject("Sketcher::SketchObject", "Sketch014")
body.addObject(sketch15)
sketch15.AttachmentSupport = (doc.XY_Plane, [""])
sketch15.MapMode = "FlatFace"
sketch15.AttachmentOffset = App.Placement(App.Vector(0, 0, 59), App.Rotation())
add_polygon(sketch15, [(-11.5, 22), (-13.3, 21), (-13.3, -21), (-11.5, -22), (24.8, -1), (24.8, 1)])
sketch15.addGeometry(Part.Circle(App.Vector(3.6, -6.3, 0), App.Vector(0, 0, 1), 1.8), False)
add_polygon(sketch15, [(6.6, 0), (-3.3, -5.7), (-3.3, 5.7)])
sketch15.addGeometry(Part.Circle(App.Vector(3.6, 6.3, 0), App.Vector(0, 0, 1), 1.8), False)
sketch15.addGeometry(Part.Circle(App.Vector(-7.3, 0, 0), App.Vector(0, 0, 1), 1.8), False)
sketch15.addConstraint(Sketcher.Constraint("Vertical", 1))
sketch15.addConstraint(Sketcher.Constraint("Vertical", 4))
sketch15.addConstraint(Sketcher.Constraint("Vertical", 8))
sketch15.addConstraint(Sketcher.Constraint("Equal", 6, 10))
sketch15.addConstraint(Sketcher.Constraint("Equal", 10, 11))
sketch15.addConstraint(Sketcher.Constraint("Symmetric", 6, 3, 10, 3, -1))
sketch15.addConstraint(Sketcher.Constraint("Symmetric", 2, 2, 5, 2, -1))
sketch15.addConstraint(Sketcher.Constraint("PointOnObject", 11, 3, -1))
sketch15.addConstraint(Sketcher.Constraint("PointOnObject", 9, 2, -1))
sketch15.addConstraint(Sketcher.Constraint("Parallel", 0, 3))
sketch15.addConstraint(Sketcher.Constraint("Parallel", 2, 5))
sketch15.addConstraint(Sketcher.Constraint("Parallel", 3, 7))
sketch15.addConstraint(Sketcher.Constraint("Parallel", 5, 9))
sketch15.addConstraint(Sketcher.Constraint("Equal", 0, 2))
sketch15.addConstraint(Sketcher.Constraint("Diameter", 6, 3.5))
sketch15.addConstraint(Sketcher.Constraint("DistanceY", 1, 2, 1, 1, 42.0))
sketch15.addConstraint(Sketcher.Constraint("DistanceY", 4, 1, 4, 2, 2.0))
sketch15.addConstraint(Sketcher.Constraint("Angle", 0, Q("-150 deg")))
sketch15.addConstraint(Sketcher.Constraint("Distance", 0, 2.0))
sketch15.addConstraint(Sketcher.Constraint("DistanceX", 0, 2, 11, 3, 6.0))
sketch15.addConstraint(Sketcher.Constraint("DistanceX", 11, 3, 7, 2, 4.0))
sketch15.addConstraint(Sketcher.Constraint("DistanceY", 8, 1, 8, 2, 11.358984))
sketch15.addConstraint(Sketcher.Constraint("DistanceX", -1, 1, 6, 3, 3.639528))
sketch15.addConstraint(Sketcher.Constraint("DistanceX", -1, 1, 3, 2, 24.826062))
sketch15.addConstraint(Sketcher.Constraint("DistanceY", 7, 2, 10, 3, 11.98334))
pad9 = doc.addObject("PartDesign::Pad", "Pad008")
body.addObject(pad9)
pad9.Profile = sketch15
pad9.Length = 2

doc.recompute()
